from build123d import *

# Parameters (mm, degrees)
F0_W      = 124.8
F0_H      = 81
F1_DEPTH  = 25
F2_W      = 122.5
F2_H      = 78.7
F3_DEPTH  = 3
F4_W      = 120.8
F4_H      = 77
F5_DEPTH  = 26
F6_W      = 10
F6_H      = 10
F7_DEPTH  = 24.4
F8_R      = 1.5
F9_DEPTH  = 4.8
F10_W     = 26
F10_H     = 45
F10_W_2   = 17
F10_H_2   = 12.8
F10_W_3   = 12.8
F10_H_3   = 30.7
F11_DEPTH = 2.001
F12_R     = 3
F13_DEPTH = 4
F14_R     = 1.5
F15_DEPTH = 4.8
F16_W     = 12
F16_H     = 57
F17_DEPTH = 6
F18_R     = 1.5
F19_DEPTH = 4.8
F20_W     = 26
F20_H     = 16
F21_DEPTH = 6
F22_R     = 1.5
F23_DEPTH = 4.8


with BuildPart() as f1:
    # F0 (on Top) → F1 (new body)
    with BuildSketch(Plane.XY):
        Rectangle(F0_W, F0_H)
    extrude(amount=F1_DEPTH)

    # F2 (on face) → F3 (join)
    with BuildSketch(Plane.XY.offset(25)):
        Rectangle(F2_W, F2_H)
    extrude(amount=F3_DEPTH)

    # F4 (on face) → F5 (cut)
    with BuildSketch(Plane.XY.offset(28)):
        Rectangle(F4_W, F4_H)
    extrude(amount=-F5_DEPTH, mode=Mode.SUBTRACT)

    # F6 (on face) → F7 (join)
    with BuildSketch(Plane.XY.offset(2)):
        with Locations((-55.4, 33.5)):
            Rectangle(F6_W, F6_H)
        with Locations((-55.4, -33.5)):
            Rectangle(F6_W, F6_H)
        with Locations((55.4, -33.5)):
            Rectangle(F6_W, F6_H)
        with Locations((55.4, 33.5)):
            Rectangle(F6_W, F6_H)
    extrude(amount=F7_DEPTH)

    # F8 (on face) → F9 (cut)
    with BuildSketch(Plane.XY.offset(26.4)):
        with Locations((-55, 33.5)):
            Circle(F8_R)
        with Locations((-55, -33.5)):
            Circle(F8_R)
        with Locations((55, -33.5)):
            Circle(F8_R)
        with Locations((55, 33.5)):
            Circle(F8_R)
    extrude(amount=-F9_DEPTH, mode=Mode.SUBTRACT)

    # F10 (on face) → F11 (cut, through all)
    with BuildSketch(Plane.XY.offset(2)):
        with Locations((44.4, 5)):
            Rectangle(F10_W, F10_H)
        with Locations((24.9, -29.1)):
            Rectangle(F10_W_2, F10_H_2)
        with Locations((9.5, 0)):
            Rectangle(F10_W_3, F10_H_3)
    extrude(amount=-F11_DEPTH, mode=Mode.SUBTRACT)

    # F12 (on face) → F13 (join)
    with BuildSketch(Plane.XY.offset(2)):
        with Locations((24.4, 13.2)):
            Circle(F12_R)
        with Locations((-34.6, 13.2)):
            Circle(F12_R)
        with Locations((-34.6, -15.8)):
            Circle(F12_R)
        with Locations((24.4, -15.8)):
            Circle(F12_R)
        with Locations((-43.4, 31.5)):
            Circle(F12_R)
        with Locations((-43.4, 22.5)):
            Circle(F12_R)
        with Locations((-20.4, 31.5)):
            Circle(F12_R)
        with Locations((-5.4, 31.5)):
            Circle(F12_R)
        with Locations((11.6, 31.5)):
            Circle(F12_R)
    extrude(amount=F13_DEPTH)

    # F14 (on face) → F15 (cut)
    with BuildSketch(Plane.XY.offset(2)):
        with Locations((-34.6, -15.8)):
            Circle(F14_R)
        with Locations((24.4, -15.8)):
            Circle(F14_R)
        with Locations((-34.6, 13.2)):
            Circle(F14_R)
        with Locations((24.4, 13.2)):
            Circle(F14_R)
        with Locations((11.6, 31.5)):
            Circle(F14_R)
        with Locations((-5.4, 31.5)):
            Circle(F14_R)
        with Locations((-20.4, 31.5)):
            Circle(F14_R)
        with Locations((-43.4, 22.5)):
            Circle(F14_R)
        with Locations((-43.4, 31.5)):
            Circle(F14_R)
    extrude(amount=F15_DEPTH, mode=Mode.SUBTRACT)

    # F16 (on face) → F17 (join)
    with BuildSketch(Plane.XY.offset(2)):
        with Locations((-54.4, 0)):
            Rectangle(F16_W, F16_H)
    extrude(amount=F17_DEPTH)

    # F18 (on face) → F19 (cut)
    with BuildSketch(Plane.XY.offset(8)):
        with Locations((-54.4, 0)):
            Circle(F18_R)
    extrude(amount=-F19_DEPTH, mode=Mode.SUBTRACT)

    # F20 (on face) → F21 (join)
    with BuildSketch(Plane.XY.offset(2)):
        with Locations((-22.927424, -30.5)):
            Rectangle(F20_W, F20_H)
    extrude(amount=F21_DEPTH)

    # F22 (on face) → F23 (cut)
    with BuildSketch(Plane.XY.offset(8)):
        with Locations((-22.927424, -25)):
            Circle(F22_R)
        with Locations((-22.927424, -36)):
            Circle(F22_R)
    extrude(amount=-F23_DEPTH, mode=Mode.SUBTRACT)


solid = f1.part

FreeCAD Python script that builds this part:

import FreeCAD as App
import Part
import Sketcher


def add_polygon(sketch, points):
    """Adds a closed chain of lines whose ends are joined by coincident constraints."""
    first, n = sketch.GeometryCount, len(points)
    for a, b in zip(points, points[1:] + points[:1]):
        sketch.addGeometry(Part.LineSegment(App.Vector(*a, 0), App.Vector(*b, 0)), False)
    for i in range(n):
        sketch.addConstraint(Sketcher.Constraint("Coincident", first + i, 2, first + (i + 1) % n, 1))

doc = App.newDocument("Part")
params = doc.addObject("Spreadsheet::Sheet", "Params")
for row, (alias, value) in enumerate([
    ("sketch1_height", "81 mm"),
    ("sketch1_width", "124.8 mm"),
    ("pad1_length", "25 mm"),
    ("sketch2_width", "122.5 mm"),
    ("sketch2_height", "78.7 mm"),
    ("pad2_length", "3 mm"),
    ("sketch3_height", "77 mm"),
    ("sketch3_width", "120.8 mm"),
    ("pocket1_length", "26 mm"),
    ("sketch4_width", "10 mm"),
    ("pad3_length", "24.4 mm"),
    ("sketch5_diameter", "3 mm"),
    ("pocket2_length", "4.8 mm"),
    ("sketch6_width", "26 mm"),
    ("sketch6_width2", "17 mm"),
    ("sketch6_height", "45 mm"),
    ("sketch6_width3", "12.8 mm"),
    ("sketch6_height2", "30.7 mm"),
    ("sketch7_diameter", "6 mm"),
    ("pad4_length", "4 mm"),
    ("sketch8_diameter", "3 mm"),
    ("pocket4_length", "4.8 mm"),
    ("sketch9_width", "12 mm"),
    ("sketch9_height", "57 mm"),
    ("pad5_length", "6 mm"),
    ("sketch10_diameter", "3 mm"),
    ("pocket5_length", "4.8 mm"),
    ("sketch11_width", "26 mm"),
    ("sketch11_height", "16 mm"),
    ("pad6_length", "6 mm"),
    ("sketch12_diameter", "3 mm"),
    ("pocket6_length", "4.8 mm"),
], start=1):
    params.set(f"A{row}", alias)
    params.set(f"B{row}", "=" + value)
    params.setAlias(f"B{row}", alias)

body = doc.addObject("PartDesign::Body", "Body")

sketch1 = body.newObject("Sketcher::SketchObject", "Sketch")
sketch1.AttachmentSupport = (doc.getObject("XY_Plane"), [""])
sketch1.MapMode = "FlatFace"
add_polygon(sketch1, [(-62.4, 40.5), (-62.4, -40.5), (62.4, -40.5), (62.4, 40.5)])
sketch1.addConstraint(Sketcher.Constraint("Vertical", 0))
sketch1.addConstraint(Sketcher.Constraint("Horizontal", 1))
sketch1.addConstraint(Sketcher.Constraint("Vertical", 2))
sketch1.addConstraint(Sketcher.Constraint("Horizontal", 3))
sketch1.addConstraint(Sketcher.Constraint("Symmetric", 0, 2, 2, 2, -1, 1))
sketch1.addConstraint(Sketcher.Constraint("DistanceY", 0, 2, 0, 1, 81.0))
sketch1.addConstraint(Sketcher.Constraint("DistanceX", 1, 1, 1, 2, 124.8))
sketch1.setExpression("Constraints[9]", "Params.sketch1_height")
sketch1.setExpression("Constraints[10]", "Params.sketch1_width")
pad1 = body.newObject("PartDesign::Pad", "Pad")
pad1.Profile = sketch1
pad1.setExpression("Length", "Params.pad1_length")

sketch2 = body.newObject("Sketcher::SketchObject", "Sketch001")
sketch2.AttachmentSupport = (doc.getObject("XY_Plane"), [""])
sketch2.MapMode = "FlatFace"
sketch2.AttachmentOffset = App.Placement(App.Vector(0, 0, 25), App.Rotation())
add_polygon(sketch2, [(-61.25, 39.35), (-61.25, -39.35), (61.25, -39.35), (61.25, 39.35)])
sketch2.addConstraint(Sketcher.Constraint("Vertical", 0))
sketch2.addConstraint(Sketcher.Constraint("Horizontal", 1))
sketch2.addConstraint(Sketcher.Constraint("Vertical", 2))
sketch2.addConstraint(Sketcher.Constraint("Horizontal", 3))
sketch2.addConstraint(Sketcher.Constraint("Symmetric", 0, 2, 2, 2, -1, 1))
sketch2.addConstraint(Sketcher.Constraint("DistanceX", 1, 1, 1, 2, 122.5))
sketch2.addConstraint(Sketcher.Constraint("DistanceY", 0, 2, 0, 1, 78.7))
sketch2.setExpression("Constraints[9]", "Params.sketch2_width")
sketch2.setExpression("Constraints[10]", "Params.sketch2_height")
pad2 = body.newObject("PartDesign::Pad", "Pad001")
pad2.Profile = sketch2
pad2.setExpression("Length", "Params.pad2_length")

sketch3 = body.newObject("Sketcher::SketchObject", "Sketch002")
sketch3.AttachmentSupport = (doc.getObject("XY_Plane"), [""])
sketch3.MapMode = "FlatFace"
sketch3.AttachmentOffset = App.Placement(App.Vector(0, 0, 28), App.Rotation())
add_polygon(sketch3, [(-60.4, 38.5), (-60.4, -38.5), (60.4, -38.5), (60.4, 38.5)])
sketch3.addConstraint(Sketcher.Constraint("Vertical", 0))
sketch3.addConstraint(Sketcher.Constraint("Horizontal", 1))
sketch3.addConstraint(Sketcher.Constraint("Vertical", 2))
sketch3.addConstraint(Sketcher.Constraint("Horizontal", 3))
sketch3.addConstraint(Sketcher.Constraint("Symmetric", 0, 2, 2, 2, -1, 1))
sketch3.addConstraint(Sketcher.Constraint("DistanceY", 0, 2, 0, 1, 77.0))
sketch3.addConstraint(Sketcher.Constraint("DistanceX", 1, 1, 1, 2, 120.8))
sketch3.setExpression("Constraints[9]", "Params.sketch3_height")
sketch3.setExpression("Constraints[10]", "Params.sketch3_width")
pocket1 = body.newObject("PartDesign::Pocket", "Pocket")
pocket1.Profile = sketch3
pocket1.setExpression("Length", "Params.pocket1_length")

sketch4 = body.newObject("Sketcher::SketchObject", "Sketch003")
sketch4.AttachmentSupport = (doc.getObject("XY_Plane"), [""])
sketch4.MapMode = "FlatFace"
sketch4.AttachmentOffset = App.Placement(App.Vector(0, 0, 2), App.Rotation())
add_polygon(sketch4, [(-60.4, 38.5), (-60.4, 28.5), (-50.4, 28.5), (-50.4, 38.5)])
add_polygon(sketch4, [(-60.4, -28.5), (-60.4, -38.5), (-50.4, -38.5), (-50.4, -28.5)])
add_polygon(sketch4, [(50.4, -28.5), (50.4, -38.5), (60.4, -38.5), (60.4, -28.5)])
add_polygon(sketch4, [(50.4, 38.5), (50.4, 28.5), (60.4, 28.5), (60.4, 38.5)])
sketch4.addConstraint(Sketcher.Constraint("Vertical", 0))
sketch4.addConstraint(Sketcher.Constraint("Horizontal", 1))
sketch4.addConstraint(Sketcher.Constraint("Vertical", 2))
sketch4.addConstraint(Sketcher.Constraint("Horizontal", 3))
sketch4.addConstraint(Sketcher.Constraint("Vertical", 4))
sketch4.addConstraint(Sketcher.Constraint("Horizontal", 5))
sketch4.addConstraint(Sketcher.Constraint("Vertical", 6))
sketch4.addConstraint(Sketcher.Constraint("Horizontal", 7))
sketch4.addConstraint(Sketcher.Constraint("Vertical", 8))
sketch4.addConstraint(Sketcher.Constraint("Horizontal", 9))
sketch4.addConstraint(Sketcher.Constraint("Vertical", 10))
sketch4.addConstraint(Sketcher.Constraint("Horizontal", 11))
sketch4.addConstraint(Sketcher.Constraint("Vertical", 12))
sketch4.addConstraint(Sketcher.Constraint("Horizontal", 13))
sketch4.addConstraint(Sketcher.Constraint("Vertical", 14))
sketch4.addConstraint(Sketcher.Constraint("Horizontal", 15))
sketch4.addConstraint(Sketcher.Constraint("Symmetric", 2, 2, 8, 2, -1, 1))
sketch4.addConstraint(Sketcher.Constraint("Symmetric", 0, 2, 10, 2, -1, 1))
sketch4.addConstraint(Sketcher.Constraint("Symmetric", 6, 2, 12, 2, -1, 1))
sketch4.addConstraint(Sketcher.Constraint("Symmetric", 4, 2, 14, 2, -1, 1))
sketch4.addConstraint(Sketcher.Constraint("Symmetric", 5, 2, 8, 2, -2))
sketch4.addConstraint(Sketcher.Constraint("Symmetric", 7, 2, 10, 2, -2))
sketch4.addConstraint(Sketcher.Constraint("Equal", 15, 0))
sketch4.addConstraint(Sketcher.Constraint("DistanceX", 1, 1, 1, 2, 10.0))
sketch4.addConstraint(Sketcher.Constraint("DistanceY", 4, 2, 0, 2, 67.0))
sketch4.addConstraint(Sketcher.Constraint("DistanceX", 0, 2, -1, 1, 60.4))
sketch4.setExpression("Constraints[39]", "Params.sketch4_width")
pad3 = body.newObject("PartDesign::Pad", "Pad002")
pad3.Profile = sketch4
pad3.setExpression("Length", "Params.pad3_length")

sketch5 = body.newObject("Sketcher::SketchObject", "Sketch004")
sketch5.AttachmentSupport = (doc.getObject("XY_Plane"), [""])
sketch5.MapMode = "FlatFace"
sketch5.AttachmentOffset = App.Placement(App.Vector(0, 0, 26.4), App.Rotation())
sketch5.addGeometry(Part.Circle(App.Vector(-55, 33.5, 0), App.Vector(0, 0, 1), 1.5), False)
sketch5.addGeometry(Part.Circle(App.Vector(-55, -33.5, 0), App.Vector(0, 0, 1), 1.5), False)
sketch5.addGeometry(Part.Circle(App.Vector(55, -33.5, 0), App.Vector(0, 0, 1), 1.5), False)
sketch5.addGeometry(Part.Circle(App.Vector(55, 33.5, 0), App.Vector(0, 0, 1), 1.5), False)
sketch5.addConstraint(Sketcher.Constraint("Equal", 0, 1))
sketch5.addConstraint(Sketcher.Constraint("Equal", 1, 2))
sketch5.addConstraint(Sketcher.Constraint("Equal", 2, 3))
sketch5.addConstraint(Sketcher.Constraint("Symmetric", 0, 3, 2, 3, -1, 1))
sketch5.addConstraint(Sketcher.Constraint("Symmetric", 1, 3, 3, 3, -1, 1))
sketch5.addConstraint(Sketcher.Constraint("Symmetric", 1, 3, 2, 3, -2))
sketch5.addConstraint(Sketcher.Constraint("Diameter", 0, 3.0))
sketch5.addConstraint(Sketcher.Constraint("DistanceX", 0, 3, -1, 1, 55.0))
sketch5.addConstraint(Sketcher.Constraint("DistanceY", 1, 3, 0, 3, 67.0))
sketch5.setExpression("Constraints[6]", "Params.sketch5_diameter")
pocket2 = body.newObject("PartDesign::Pocket", "Pocket001")
pocket2.Profile = sketch5
pocket2.setExpression("Length", "Params.pocket2_length")

sketch6 = body.newObject("Sketcher::SketchObject", "Sketch005")
sketch6.AttachmentSupport = (doc.getObject("XY_Plane"), [""])
sketch6.MapMode = "FlatFace"
sketch6.AttachmentOffset = App.Placement(App.Vector(0, 0, 2), App.Rotation())
add_polygon(sketch6, [(31.4, 27.5), (31.4, -17.5), (57.4, -17.5), (57.4, 27.5)])
add_polygon(sketch6, [(16.4, -22.7), (16.4, -35.5), (33.4, -35.5), (33.4, -22.7)])
add_polygon(sketch6, [(3.1, 15.35), (3.1, -15.35), (15.9, -15.35), (15.9, 15.35)])
sketch6.addConstraint(Sketcher.Constraint("Vertical", 0))
sketch6.addConstraint(Sketcher.Constraint("Horizontal", 1))
sketch6.addConstraint(Sketcher.Constraint("Vertical", 2))
sketch6.addConstraint(Sketcher.Constraint("Horizontal", 3))
sketch6.addConstraint(Sketcher.Constraint("Vertical", 4))
sketch6.addConstraint(Sketcher.Constraint("Horizontal", 5))
sketch6.addConstraint(Sketcher.Constraint("Vertical", 6))
sketch6.addConstraint(Sketcher.Constraint("Horizontal", 7))
sketch6.addConstraint(Sketcher.Constraint("Vertical", 8))
sketch6.addConstraint(Sketcher.Constraint("Horizontal", 9))
sketch6.addConstraint(Sketcher.Constraint("Vertical", 10))
sketch6.addConstraint(Sketcher.Constraint("Horizontal", 11))
sketch6.addConstraint(Sketcher.Constraint("Equal", 11, 4))
sketch6.addConstraint(Sketcher.Constraint("DistanceX", 1, 1, 1, 2, 26.0))
sketch6.addConstraint(Sketcher.Constraint("DistanceX", 5, 1, 5, 2, 17.0))
sketch6.addConstraint(Sketcher.Constraint("DistanceY", 0, 2, 0, 1, 45.0))
sketch6.addConstraint(Sketcher.Constraint("DistanceX", 9, 1, 9, 2, 12.8))
sketch6.addConstraint(Sketcher.Constraint("DistanceY", 8, 2, 8, 1, 30.7))
sketch6.addConstraint(Sketcher.Constraint("DistanceX", 4, 2, 0, 2, 15.0))
sketch6.addConstraint(Sketcher.Constraint("DistanceY", 4, 2, 0, 2, 18.0))
sketch6.addConstraint(Sketcher.Constraint("DistanceX", -1, 1, 0, 2, 31.4))
sketch6.addConstraint(Sketcher.Constraint("DistanceY", 0, 2, -1, 1, 17.5))
sketch6.addConstraint(Sketcher.Constraint("DistanceX", -1, 1, 8, 2, 3.1))
sketch6.addConstraint(Sketcher.Constraint("DistanceY", 8, 2, -1, 1, 15.35))
sketch6.setExpression("Constraints[25]", "Params.sketch6_width")
sketch6.setExpression("Constraints[26]", "Params.sketch6_width2")
sketch6.setExpression("Constraints[27]", "Params.sketch6_height")
sketch6.setExpression("Constraints[28]", "Params.sketch6_width3")
sketch6.setExpression("Constraints[29]", "Params.sketch6_height2")
pocket3 = body.newObject("PartDesign::Pocket", "Pocket002")
pocket3.Profile = sketch6
pocket3.Type = "ThroughAll"

sketch7 = body.newObject("Sketcher::SketchObject", "Sketch006")
sketch7.AttachmentSupport = (doc.getObject("XY_Plane"), [""])
sketch7.MapMode = "FlatFace"
sketch7.AttachmentOffset = App.Placement(App.Vector(0, 0, 2), App.Rotation())
sketch7.addGeometry(Part.Circle(App.Vector(24.4, 13.2, 0), App.Vector(0, 0, 1), 3), False)
sketch7.addGeometry(Part.Circle(App.Vector(-34.6, 13.2, 0), App.Vector(0, 0, 1), 3), False)
sketch7.addGeometry(Part.Circle(App.Vector(-34.6, -15.8, 0), App.Vector(0, 0, 1), 3), False)
sketch7.addGeometry(Part.Circle(App.Vector(24.4, -15.8, 0), App.Vector(0, 0, 1), 3), False)
sketch7.addGeometry(Part.Circle(App.Vector(-43.4, 31.5, 0), App.Vector(0, 0, 1), 3), False)
sketch7.addGeometry(Part.Circle(App.Vector(-43.4, 22.5, 0), App.Vector(0, 0, 1), 3), False)
sketch7.addGeometry(Part.Circle(App.Vector(-20.4, 31.5, 0), App.Vector(0, 0, 1), 3), False)
sketch7.addGeometry(Part.Circle(App.Vector(-5.4, 31.5, 0), App.Vector(0, 0, 1), 3), False)
sketch7.addGeometry(Part.Circle(App.Vector(11.6, 31.5, 0), App.Vector(0, 0, 1), 3), False)
sketch7.addConstraint(Sketcher.Constraint("Equal", 0, 1))
sketch7.addConstraint(Sketcher.Constraint("Equal", 1, 2))
sketch7.addConstraint(Sketcher.Constraint("Equal", 2, 3))
sketch7.addConstraint(Sketcher.Constraint("Equal", 3, 4))
sketch7.addConstraint(Sketcher.Constraint("Equal", 4, 5))
sketch7.addConstraint(Sketcher.Constraint("Equal", 5, 6))
sketch7.addConstraint(Sketcher.Constraint("Equal", 6, 7))
sketch7.addConstraint(Sketcher.Constraint("Equal", 7, 8))
sketch7.addConstraint(Sketcher.Constraint("Horizontal", 0, 3, 1, 3))
sketch7.addConstraint(Sketcher.Constraint("Horizontal", 2, 3, 3, 3))
sketch7.addConstraint(Sketcher.Constraint("Horizontal", 4, 3, 6, 3))
sketch7.addConstraint(Sketcher.Constraint("Horizontal", 6, 3, 7, 3))
sketch7.addConstraint(Sketcher.Constraint("Horizontal", 7, 3, 8, 3))
sketch7.addConstraint(Sketcher.Constraint("Vertical", 1, 3, 2, 3))
sketch7.addConstraint(Sketcher.Constraint("Vertical", 0, 3, 3, 3))
sketch7.addConstraint(Sketcher.Constraint("Vertical", 4, 3, 5, 3))
sketch7.addConstraint(Sketcher.Constraint("Diameter", 0, 6.0))
sketch7.addConstraint(Sketcher.Constraint("DistanceX", 1, 3, 0, 3, 59.0))
sketch7.addConstraint(Sketcher.Constraint("DistanceY", 2, 3, 1, 3, 29.0))
sketch7.addConstraint(Sketcher.Constraint("DistanceY", 5, 3, 4, 3, 9.0))
sketch7.addConstraint(Sketcher.Constraint("DistanceX", 4, 3, 6, 3, 23.0))
sketch7.addConstraint(Sketcher.Constraint("DistanceX", 6, 3, 7, 3, 15.0))
sketch7.addConstraint(Sketcher.Constraint("DistanceX", 7, 3, 8, 3, 17.0))
sketch7.addConstraint(Sketcher.Constraint("DistanceX", -1, 1, 0, 3, 24.4))
sketch7.addConstraint(Sketcher.Constraint("DistanceY", -1, 1, 0, 3, 13.2))
sketch7.addConstraint(Sketcher.Constraint("DistanceX", 4, 3, -1, 1, 43.4))
sketch7.addConstraint(Sketcher.Constraint("DistanceY", -1, 1, 4, 3, 31.5))
sketch7.setExpression("Constraints[16]", "Params.sketch7_diameter")
pad4 = body.newObject("PartDesign::Pad", "Pad003")
pad4.Profile = sketch7
pad4.setExpression("Length", "Params.pad4_length")

sketch8 = body.newObject("Sketcher::SketchObject", "Sketch007")
sketch8.AttachmentSupport = (doc.getObject("XY_Plane"), [""])
sketch8.MapMode = "FlatFace"
sketch8.AttachmentOffset = App.Placement(App.Vector(0, 0, 2), App.Rotation())
sketch8.addGeometry(Part.Circle(App.Vector(-34.6, -15.8, 0), App.Vector(0, 0, 1), 1.5), False)
sketch8.addGeometry(Part.Circle(App.Vector(24.4, -15.8, 0), App.Vector(0, 0, 1), 1.5), False)
sketch8.addGeometry(Part.Circle(App.Vector(-34.6, 13.2, 0), App.Vector(0, 0, 1), 1.5), False)
sketch8.addGeometry(Part.Circle(App.Vector(24.4, 13.2, 0), App.Vector(0, 0, 1), 1.5), False)
sketch8.addGeometry(Part.Circle(App.Vector(11.6, 31.5, 0), App.Vector(0, 0, 1), 1.5), False)
sketch8.addGeometry(Part.Circle(App.Vector(-5.4, 31.5, 0), App.Vector(0, 0, 1), 1.5), False)
sketch8.addGeometry(Part.Circle(App.Vector(-20.4, 31.5, 0), App.Vector(0, 0, 1), 1.5), False)
sketch8.addGeometry(Part.Circle(App.Vector(-43.4, 22.5, 0), App.Vector(0, 0, 1), 1.5), False)
sketch8.addGeometry(Part.Circle(App.Vector(-43.4, 31.5, 0), App.Vector(0, 0, 1), 1.5), False)
sketch8.addConstraint(Sketcher.Constraint("Equal", 0, 1))
sketch8.addConstraint(Sketcher.Constraint("Equal", 1, 2))
sketch8.addConstraint(Sketcher.Constraint("Equal", 2, 3))
sketch8.addConstraint(Sketcher.Constraint("Equal", 3, 4))
sketch8.addConstraint(Sketcher.Constraint("Equal", 4, 5))
sketch8.addConstraint(Sketcher.Constraint("Equal", 5, 6))
sketch8.addConstraint(Sketcher.Constraint("Equal", 6, 7))
sketch8.addConstraint(Sketcher.Constraint("Equal", 7, 8))
sketch8.addConstraint(Sketcher.Constraint("Horizontal", 0, 3, 1, 3))
sketch8.addConstraint(Sketcher.Constraint("Horizontal", 2, 3, 3, 3))
sketch8.addConstraint(Sketcher.Constraint("Horizontal", 4, 3, 5, 3))
sketch8.addConstraint(Sketcher.Constraint("Horizontal", 5, 3, 6, 3))
sketch8.addConstraint(Sketcher.Constraint("Horizontal", 6, 3, 8, 3))
sketch8.addConstraint(Sketcher.Constraint("Vertical", 0, 3, 2, 3))
sketch8.addConstraint(Sketcher.Constraint("Vertical", 1, 3, 3, 3))
sketch8.addConstraint(Sketcher.Constraint("Vertical", 7, 3, 8, 3))
sketch8.addConstraint(Sketcher.Constraint("Diameter", 0, 3.0))
sketch8.addConstraint(Sketcher.Constraint("DistanceX", 0, 3, 1, 3, 59.0))
sketch8.addConstraint(Sketcher.Constraint("DistanceY", 0, 3, 2, 3, 29.0))
sketch8.addConstraint(Sketcher.Constraint("DistanceX", 5, 3, 4, 3, 17.0))
sketch8.addConstraint(Sketcher.Constraint("DistanceX", 6, 3, 5, 3, 15.0))
sketch8.addConstraint(Sketcher.Constraint("DistanceX", 7, 3, 6, 3, 23.0))
sketch8.addConstraint(Sketcher.Constraint("DistanceY", 7, 3, 6, 3, 9.0))
sketch8.addConstraint(Sketcher.Constraint("DistanceX", 0, 3, -1, 1, 34.6))
sketch8.addConstraint(Sketcher.Constraint("DistanceY", 0, 3, -1, 1, 15.8))
sketch8.addConstraint(Sketcher.Constraint("DistanceX", -1, 1, 4, 3, 11.6))
sketch8.addConstraint(Sketcher.Constraint("DistanceY", -1, 1, 4, 3, 31.5))
sketch8.setExpression("Constraints[16]", "Params.sketch8_diameter")
pocket4 = body.newObject("PartDesign::Pocket", "Pocket003")
pocket4.Profile = sketch8
pocket4.setExpression("Length", "Params.pocket4_length")
pocket4.Reversed = True

sketch9 = body.newObject("Sketcher::SketchObject", "Sketch008")
sketch9.AttachmentSupport = (doc.getObject("XY_Plane"), [""])
sketch9.MapMode = "FlatFace"
sketch9.AttachmentOffset = App.Placement(App.Vector(0, 0, 2), App.Rotation())
add_polygon(sketch9, [(-60.4, 28.5), (-60.4, -28.5), (-48.4, -28.5), (-48.4, 28.5)])
sketch9.addConstraint(Sketcher.Constraint("Vertical", 0))
sketch9.addConstraint(Sketcher.Constraint("Horizontal", 1))
sketch9.addConstraint(Sketcher.Constraint("Vertical", 2))
sketch9.addConstraint(Sketcher.Constraint("Horizontal", 3))
sketch9.addConstraint(Sketcher.Constraint("DistanceX", 1, 1, 1, 2, 12.0))
sketch9.addConstraint(Sketcher.Constraint("DistanceY", 0, 2, 0, 1, 57.0))
sketch9.addConstraint(Sketcher.Constraint("DistanceX", 0, 2, -1, 1, 60.4))
sketch9.addConstraint(Sketcher.Constraint("DistanceY", 0, 2, -1, 1, 28.5))
sketch9.setExpression("Constraints[8]", "Params.sketch9_width")
sketch9.setExpression("Constraints[9]", "Params.sketch9_height")
pad5 = body.newObject("PartDesign::Pad", "Pad004")
pad5.Profile = sketch9
pad5.setExpression("Length", "Params.pad5_length")

sketch10 = body.newObject("Sketcher::SketchObject", "Sketch009")
sketch10.AttachmentSupport = (doc.getObject("XY_Plane"), [""])
sketch10.MapMode = "FlatFace"
sketch10.AttachmentOffset = App.Placement(App.Vector(0, 0, 8), App.Rotation())
sketch10.addGeometry(Part.Circle(App.Vector(-54.4, 0, 0), App.Vector(0, 0, 1), 1.5), False)
sketch10.addConstraint(Sketcher.Constraint("PointOnObject", 0, 3, -1))
sketch10.addConstraint(Sketcher.Constraint("Diameter", 0, 3.0))
sketch10.addConstraint(Sketcher.Constraint("DistanceX", 0, 3, -1, 1, 54.4))
sketch10.setExpression("Constraints[1]", "Params.sketch10_diameter")
pocket5 = body.newObject("PartDesign::Pocket", "Pocket004")
pocket5.Profile = sketch10
pocket5.setExpression("Length", "Params.pocket5_length")

sketch11 = body.newObject("Sketcher::SketchObject", "Sketch010")
sketch11.AttachmentSupport = (doc.getObject("XY_Plane"), [""])
sketch11.MapMode = "FlatFace"
sketch11.AttachmentOffset = App.Placement(App.Vector(0, 0, 2), App.Rotation())
add_polygon(sketch11, [(-35.927424, -22.5), (-35.927424, -38.5), (-9.927424, -38.5), (-9.927424, -22.5)])
sketch11.addConstraint(Sketcher.Constraint("Vertical", 0))
sketch11.addConstraint(Sketcher.Constraint("Horizontal", 1))
sketch11.addConstraint(Sketcher.Constraint("Vertical", 2))
sketch11.addConstraint(Sketcher.Constraint("Horizontal", 3))
sketch11.addConstraint(Sketcher.Constraint("DistanceX", 1, 1, 1, 2, 26.0))
sketch11.addConstraint(Sketcher.Constraint("DistanceY", 0, 2, 0, 1, 16.0))
sketch11.addConstraint(Sketcher.Constraint("DistanceY", 0, 2, -1, 1, 38.5))
sketch11.addConstraint(Sketcher.Constraint("DistanceX", 0, 2, -1, 1, 35.927424))
sketch11.setExpression("Constraints[8]", "Params.sketch11_width")
sketch11.setExpression("Constraints[9]", "Params.sketch11_height")
pad6 = body.newObject("PartDesign::Pad", "Pad005")
pad6.Profile = sketch11
pad6.setExpression("Length", "Params.pad6_length")

sketch12 = body.newObject("Sketcher::SketchObject", "Sketch011")
sketch12.AttachmentSupport = (doc.getObject("XY_Plane"), [""])
sketch12.MapMode = "FlatFace"
sketch12.AttachmentOffset = App.Placement(App.Vector(0, 0, 8), App.Rotation())
sketch12.addGeometry(Part.Circle(App.Vector(-22.927424, -25, 0), App.Vector(0, 0, 1), 1.5), False)
sketch12.addGeometry(Part.Circle(App.Vector(-22.927424, -36, 0), App.Vector(0, 0, 1), 1.5), False)
sketch12.addConstraint(Sketcher.Constraint("Equal", 0, 1))
sketch12.addConstraint(Sketcher.Constraint("Vertical", 0, 3, 1, 3))
sketch12.addConstraint(Sketcher.Constraint("Diameter", 0, 3.0))
sketch12.addConstraint(Sketcher.Constraint("DistanceY", 0, 3, -1, 1, 25.0))
sketch12.addConstraint(Sketcher.Constraint("DistanceY", 1, 3, -1, 1, 36.0))
sketch12.addConstraint(Sketcher.Constraint("DistanceX", 0, 3, -1, 1, 22.927424))
sketch12.setExpression("Constraints[2]", "Params.sketch12_diameter")
pocket6 = body.newObject("PartDesign::Pocket", "Pocket005")
pocket6.Profile = sketch12
pocket6.setExpression("Length", "Params.pocket6_length")

doc.recompute()
